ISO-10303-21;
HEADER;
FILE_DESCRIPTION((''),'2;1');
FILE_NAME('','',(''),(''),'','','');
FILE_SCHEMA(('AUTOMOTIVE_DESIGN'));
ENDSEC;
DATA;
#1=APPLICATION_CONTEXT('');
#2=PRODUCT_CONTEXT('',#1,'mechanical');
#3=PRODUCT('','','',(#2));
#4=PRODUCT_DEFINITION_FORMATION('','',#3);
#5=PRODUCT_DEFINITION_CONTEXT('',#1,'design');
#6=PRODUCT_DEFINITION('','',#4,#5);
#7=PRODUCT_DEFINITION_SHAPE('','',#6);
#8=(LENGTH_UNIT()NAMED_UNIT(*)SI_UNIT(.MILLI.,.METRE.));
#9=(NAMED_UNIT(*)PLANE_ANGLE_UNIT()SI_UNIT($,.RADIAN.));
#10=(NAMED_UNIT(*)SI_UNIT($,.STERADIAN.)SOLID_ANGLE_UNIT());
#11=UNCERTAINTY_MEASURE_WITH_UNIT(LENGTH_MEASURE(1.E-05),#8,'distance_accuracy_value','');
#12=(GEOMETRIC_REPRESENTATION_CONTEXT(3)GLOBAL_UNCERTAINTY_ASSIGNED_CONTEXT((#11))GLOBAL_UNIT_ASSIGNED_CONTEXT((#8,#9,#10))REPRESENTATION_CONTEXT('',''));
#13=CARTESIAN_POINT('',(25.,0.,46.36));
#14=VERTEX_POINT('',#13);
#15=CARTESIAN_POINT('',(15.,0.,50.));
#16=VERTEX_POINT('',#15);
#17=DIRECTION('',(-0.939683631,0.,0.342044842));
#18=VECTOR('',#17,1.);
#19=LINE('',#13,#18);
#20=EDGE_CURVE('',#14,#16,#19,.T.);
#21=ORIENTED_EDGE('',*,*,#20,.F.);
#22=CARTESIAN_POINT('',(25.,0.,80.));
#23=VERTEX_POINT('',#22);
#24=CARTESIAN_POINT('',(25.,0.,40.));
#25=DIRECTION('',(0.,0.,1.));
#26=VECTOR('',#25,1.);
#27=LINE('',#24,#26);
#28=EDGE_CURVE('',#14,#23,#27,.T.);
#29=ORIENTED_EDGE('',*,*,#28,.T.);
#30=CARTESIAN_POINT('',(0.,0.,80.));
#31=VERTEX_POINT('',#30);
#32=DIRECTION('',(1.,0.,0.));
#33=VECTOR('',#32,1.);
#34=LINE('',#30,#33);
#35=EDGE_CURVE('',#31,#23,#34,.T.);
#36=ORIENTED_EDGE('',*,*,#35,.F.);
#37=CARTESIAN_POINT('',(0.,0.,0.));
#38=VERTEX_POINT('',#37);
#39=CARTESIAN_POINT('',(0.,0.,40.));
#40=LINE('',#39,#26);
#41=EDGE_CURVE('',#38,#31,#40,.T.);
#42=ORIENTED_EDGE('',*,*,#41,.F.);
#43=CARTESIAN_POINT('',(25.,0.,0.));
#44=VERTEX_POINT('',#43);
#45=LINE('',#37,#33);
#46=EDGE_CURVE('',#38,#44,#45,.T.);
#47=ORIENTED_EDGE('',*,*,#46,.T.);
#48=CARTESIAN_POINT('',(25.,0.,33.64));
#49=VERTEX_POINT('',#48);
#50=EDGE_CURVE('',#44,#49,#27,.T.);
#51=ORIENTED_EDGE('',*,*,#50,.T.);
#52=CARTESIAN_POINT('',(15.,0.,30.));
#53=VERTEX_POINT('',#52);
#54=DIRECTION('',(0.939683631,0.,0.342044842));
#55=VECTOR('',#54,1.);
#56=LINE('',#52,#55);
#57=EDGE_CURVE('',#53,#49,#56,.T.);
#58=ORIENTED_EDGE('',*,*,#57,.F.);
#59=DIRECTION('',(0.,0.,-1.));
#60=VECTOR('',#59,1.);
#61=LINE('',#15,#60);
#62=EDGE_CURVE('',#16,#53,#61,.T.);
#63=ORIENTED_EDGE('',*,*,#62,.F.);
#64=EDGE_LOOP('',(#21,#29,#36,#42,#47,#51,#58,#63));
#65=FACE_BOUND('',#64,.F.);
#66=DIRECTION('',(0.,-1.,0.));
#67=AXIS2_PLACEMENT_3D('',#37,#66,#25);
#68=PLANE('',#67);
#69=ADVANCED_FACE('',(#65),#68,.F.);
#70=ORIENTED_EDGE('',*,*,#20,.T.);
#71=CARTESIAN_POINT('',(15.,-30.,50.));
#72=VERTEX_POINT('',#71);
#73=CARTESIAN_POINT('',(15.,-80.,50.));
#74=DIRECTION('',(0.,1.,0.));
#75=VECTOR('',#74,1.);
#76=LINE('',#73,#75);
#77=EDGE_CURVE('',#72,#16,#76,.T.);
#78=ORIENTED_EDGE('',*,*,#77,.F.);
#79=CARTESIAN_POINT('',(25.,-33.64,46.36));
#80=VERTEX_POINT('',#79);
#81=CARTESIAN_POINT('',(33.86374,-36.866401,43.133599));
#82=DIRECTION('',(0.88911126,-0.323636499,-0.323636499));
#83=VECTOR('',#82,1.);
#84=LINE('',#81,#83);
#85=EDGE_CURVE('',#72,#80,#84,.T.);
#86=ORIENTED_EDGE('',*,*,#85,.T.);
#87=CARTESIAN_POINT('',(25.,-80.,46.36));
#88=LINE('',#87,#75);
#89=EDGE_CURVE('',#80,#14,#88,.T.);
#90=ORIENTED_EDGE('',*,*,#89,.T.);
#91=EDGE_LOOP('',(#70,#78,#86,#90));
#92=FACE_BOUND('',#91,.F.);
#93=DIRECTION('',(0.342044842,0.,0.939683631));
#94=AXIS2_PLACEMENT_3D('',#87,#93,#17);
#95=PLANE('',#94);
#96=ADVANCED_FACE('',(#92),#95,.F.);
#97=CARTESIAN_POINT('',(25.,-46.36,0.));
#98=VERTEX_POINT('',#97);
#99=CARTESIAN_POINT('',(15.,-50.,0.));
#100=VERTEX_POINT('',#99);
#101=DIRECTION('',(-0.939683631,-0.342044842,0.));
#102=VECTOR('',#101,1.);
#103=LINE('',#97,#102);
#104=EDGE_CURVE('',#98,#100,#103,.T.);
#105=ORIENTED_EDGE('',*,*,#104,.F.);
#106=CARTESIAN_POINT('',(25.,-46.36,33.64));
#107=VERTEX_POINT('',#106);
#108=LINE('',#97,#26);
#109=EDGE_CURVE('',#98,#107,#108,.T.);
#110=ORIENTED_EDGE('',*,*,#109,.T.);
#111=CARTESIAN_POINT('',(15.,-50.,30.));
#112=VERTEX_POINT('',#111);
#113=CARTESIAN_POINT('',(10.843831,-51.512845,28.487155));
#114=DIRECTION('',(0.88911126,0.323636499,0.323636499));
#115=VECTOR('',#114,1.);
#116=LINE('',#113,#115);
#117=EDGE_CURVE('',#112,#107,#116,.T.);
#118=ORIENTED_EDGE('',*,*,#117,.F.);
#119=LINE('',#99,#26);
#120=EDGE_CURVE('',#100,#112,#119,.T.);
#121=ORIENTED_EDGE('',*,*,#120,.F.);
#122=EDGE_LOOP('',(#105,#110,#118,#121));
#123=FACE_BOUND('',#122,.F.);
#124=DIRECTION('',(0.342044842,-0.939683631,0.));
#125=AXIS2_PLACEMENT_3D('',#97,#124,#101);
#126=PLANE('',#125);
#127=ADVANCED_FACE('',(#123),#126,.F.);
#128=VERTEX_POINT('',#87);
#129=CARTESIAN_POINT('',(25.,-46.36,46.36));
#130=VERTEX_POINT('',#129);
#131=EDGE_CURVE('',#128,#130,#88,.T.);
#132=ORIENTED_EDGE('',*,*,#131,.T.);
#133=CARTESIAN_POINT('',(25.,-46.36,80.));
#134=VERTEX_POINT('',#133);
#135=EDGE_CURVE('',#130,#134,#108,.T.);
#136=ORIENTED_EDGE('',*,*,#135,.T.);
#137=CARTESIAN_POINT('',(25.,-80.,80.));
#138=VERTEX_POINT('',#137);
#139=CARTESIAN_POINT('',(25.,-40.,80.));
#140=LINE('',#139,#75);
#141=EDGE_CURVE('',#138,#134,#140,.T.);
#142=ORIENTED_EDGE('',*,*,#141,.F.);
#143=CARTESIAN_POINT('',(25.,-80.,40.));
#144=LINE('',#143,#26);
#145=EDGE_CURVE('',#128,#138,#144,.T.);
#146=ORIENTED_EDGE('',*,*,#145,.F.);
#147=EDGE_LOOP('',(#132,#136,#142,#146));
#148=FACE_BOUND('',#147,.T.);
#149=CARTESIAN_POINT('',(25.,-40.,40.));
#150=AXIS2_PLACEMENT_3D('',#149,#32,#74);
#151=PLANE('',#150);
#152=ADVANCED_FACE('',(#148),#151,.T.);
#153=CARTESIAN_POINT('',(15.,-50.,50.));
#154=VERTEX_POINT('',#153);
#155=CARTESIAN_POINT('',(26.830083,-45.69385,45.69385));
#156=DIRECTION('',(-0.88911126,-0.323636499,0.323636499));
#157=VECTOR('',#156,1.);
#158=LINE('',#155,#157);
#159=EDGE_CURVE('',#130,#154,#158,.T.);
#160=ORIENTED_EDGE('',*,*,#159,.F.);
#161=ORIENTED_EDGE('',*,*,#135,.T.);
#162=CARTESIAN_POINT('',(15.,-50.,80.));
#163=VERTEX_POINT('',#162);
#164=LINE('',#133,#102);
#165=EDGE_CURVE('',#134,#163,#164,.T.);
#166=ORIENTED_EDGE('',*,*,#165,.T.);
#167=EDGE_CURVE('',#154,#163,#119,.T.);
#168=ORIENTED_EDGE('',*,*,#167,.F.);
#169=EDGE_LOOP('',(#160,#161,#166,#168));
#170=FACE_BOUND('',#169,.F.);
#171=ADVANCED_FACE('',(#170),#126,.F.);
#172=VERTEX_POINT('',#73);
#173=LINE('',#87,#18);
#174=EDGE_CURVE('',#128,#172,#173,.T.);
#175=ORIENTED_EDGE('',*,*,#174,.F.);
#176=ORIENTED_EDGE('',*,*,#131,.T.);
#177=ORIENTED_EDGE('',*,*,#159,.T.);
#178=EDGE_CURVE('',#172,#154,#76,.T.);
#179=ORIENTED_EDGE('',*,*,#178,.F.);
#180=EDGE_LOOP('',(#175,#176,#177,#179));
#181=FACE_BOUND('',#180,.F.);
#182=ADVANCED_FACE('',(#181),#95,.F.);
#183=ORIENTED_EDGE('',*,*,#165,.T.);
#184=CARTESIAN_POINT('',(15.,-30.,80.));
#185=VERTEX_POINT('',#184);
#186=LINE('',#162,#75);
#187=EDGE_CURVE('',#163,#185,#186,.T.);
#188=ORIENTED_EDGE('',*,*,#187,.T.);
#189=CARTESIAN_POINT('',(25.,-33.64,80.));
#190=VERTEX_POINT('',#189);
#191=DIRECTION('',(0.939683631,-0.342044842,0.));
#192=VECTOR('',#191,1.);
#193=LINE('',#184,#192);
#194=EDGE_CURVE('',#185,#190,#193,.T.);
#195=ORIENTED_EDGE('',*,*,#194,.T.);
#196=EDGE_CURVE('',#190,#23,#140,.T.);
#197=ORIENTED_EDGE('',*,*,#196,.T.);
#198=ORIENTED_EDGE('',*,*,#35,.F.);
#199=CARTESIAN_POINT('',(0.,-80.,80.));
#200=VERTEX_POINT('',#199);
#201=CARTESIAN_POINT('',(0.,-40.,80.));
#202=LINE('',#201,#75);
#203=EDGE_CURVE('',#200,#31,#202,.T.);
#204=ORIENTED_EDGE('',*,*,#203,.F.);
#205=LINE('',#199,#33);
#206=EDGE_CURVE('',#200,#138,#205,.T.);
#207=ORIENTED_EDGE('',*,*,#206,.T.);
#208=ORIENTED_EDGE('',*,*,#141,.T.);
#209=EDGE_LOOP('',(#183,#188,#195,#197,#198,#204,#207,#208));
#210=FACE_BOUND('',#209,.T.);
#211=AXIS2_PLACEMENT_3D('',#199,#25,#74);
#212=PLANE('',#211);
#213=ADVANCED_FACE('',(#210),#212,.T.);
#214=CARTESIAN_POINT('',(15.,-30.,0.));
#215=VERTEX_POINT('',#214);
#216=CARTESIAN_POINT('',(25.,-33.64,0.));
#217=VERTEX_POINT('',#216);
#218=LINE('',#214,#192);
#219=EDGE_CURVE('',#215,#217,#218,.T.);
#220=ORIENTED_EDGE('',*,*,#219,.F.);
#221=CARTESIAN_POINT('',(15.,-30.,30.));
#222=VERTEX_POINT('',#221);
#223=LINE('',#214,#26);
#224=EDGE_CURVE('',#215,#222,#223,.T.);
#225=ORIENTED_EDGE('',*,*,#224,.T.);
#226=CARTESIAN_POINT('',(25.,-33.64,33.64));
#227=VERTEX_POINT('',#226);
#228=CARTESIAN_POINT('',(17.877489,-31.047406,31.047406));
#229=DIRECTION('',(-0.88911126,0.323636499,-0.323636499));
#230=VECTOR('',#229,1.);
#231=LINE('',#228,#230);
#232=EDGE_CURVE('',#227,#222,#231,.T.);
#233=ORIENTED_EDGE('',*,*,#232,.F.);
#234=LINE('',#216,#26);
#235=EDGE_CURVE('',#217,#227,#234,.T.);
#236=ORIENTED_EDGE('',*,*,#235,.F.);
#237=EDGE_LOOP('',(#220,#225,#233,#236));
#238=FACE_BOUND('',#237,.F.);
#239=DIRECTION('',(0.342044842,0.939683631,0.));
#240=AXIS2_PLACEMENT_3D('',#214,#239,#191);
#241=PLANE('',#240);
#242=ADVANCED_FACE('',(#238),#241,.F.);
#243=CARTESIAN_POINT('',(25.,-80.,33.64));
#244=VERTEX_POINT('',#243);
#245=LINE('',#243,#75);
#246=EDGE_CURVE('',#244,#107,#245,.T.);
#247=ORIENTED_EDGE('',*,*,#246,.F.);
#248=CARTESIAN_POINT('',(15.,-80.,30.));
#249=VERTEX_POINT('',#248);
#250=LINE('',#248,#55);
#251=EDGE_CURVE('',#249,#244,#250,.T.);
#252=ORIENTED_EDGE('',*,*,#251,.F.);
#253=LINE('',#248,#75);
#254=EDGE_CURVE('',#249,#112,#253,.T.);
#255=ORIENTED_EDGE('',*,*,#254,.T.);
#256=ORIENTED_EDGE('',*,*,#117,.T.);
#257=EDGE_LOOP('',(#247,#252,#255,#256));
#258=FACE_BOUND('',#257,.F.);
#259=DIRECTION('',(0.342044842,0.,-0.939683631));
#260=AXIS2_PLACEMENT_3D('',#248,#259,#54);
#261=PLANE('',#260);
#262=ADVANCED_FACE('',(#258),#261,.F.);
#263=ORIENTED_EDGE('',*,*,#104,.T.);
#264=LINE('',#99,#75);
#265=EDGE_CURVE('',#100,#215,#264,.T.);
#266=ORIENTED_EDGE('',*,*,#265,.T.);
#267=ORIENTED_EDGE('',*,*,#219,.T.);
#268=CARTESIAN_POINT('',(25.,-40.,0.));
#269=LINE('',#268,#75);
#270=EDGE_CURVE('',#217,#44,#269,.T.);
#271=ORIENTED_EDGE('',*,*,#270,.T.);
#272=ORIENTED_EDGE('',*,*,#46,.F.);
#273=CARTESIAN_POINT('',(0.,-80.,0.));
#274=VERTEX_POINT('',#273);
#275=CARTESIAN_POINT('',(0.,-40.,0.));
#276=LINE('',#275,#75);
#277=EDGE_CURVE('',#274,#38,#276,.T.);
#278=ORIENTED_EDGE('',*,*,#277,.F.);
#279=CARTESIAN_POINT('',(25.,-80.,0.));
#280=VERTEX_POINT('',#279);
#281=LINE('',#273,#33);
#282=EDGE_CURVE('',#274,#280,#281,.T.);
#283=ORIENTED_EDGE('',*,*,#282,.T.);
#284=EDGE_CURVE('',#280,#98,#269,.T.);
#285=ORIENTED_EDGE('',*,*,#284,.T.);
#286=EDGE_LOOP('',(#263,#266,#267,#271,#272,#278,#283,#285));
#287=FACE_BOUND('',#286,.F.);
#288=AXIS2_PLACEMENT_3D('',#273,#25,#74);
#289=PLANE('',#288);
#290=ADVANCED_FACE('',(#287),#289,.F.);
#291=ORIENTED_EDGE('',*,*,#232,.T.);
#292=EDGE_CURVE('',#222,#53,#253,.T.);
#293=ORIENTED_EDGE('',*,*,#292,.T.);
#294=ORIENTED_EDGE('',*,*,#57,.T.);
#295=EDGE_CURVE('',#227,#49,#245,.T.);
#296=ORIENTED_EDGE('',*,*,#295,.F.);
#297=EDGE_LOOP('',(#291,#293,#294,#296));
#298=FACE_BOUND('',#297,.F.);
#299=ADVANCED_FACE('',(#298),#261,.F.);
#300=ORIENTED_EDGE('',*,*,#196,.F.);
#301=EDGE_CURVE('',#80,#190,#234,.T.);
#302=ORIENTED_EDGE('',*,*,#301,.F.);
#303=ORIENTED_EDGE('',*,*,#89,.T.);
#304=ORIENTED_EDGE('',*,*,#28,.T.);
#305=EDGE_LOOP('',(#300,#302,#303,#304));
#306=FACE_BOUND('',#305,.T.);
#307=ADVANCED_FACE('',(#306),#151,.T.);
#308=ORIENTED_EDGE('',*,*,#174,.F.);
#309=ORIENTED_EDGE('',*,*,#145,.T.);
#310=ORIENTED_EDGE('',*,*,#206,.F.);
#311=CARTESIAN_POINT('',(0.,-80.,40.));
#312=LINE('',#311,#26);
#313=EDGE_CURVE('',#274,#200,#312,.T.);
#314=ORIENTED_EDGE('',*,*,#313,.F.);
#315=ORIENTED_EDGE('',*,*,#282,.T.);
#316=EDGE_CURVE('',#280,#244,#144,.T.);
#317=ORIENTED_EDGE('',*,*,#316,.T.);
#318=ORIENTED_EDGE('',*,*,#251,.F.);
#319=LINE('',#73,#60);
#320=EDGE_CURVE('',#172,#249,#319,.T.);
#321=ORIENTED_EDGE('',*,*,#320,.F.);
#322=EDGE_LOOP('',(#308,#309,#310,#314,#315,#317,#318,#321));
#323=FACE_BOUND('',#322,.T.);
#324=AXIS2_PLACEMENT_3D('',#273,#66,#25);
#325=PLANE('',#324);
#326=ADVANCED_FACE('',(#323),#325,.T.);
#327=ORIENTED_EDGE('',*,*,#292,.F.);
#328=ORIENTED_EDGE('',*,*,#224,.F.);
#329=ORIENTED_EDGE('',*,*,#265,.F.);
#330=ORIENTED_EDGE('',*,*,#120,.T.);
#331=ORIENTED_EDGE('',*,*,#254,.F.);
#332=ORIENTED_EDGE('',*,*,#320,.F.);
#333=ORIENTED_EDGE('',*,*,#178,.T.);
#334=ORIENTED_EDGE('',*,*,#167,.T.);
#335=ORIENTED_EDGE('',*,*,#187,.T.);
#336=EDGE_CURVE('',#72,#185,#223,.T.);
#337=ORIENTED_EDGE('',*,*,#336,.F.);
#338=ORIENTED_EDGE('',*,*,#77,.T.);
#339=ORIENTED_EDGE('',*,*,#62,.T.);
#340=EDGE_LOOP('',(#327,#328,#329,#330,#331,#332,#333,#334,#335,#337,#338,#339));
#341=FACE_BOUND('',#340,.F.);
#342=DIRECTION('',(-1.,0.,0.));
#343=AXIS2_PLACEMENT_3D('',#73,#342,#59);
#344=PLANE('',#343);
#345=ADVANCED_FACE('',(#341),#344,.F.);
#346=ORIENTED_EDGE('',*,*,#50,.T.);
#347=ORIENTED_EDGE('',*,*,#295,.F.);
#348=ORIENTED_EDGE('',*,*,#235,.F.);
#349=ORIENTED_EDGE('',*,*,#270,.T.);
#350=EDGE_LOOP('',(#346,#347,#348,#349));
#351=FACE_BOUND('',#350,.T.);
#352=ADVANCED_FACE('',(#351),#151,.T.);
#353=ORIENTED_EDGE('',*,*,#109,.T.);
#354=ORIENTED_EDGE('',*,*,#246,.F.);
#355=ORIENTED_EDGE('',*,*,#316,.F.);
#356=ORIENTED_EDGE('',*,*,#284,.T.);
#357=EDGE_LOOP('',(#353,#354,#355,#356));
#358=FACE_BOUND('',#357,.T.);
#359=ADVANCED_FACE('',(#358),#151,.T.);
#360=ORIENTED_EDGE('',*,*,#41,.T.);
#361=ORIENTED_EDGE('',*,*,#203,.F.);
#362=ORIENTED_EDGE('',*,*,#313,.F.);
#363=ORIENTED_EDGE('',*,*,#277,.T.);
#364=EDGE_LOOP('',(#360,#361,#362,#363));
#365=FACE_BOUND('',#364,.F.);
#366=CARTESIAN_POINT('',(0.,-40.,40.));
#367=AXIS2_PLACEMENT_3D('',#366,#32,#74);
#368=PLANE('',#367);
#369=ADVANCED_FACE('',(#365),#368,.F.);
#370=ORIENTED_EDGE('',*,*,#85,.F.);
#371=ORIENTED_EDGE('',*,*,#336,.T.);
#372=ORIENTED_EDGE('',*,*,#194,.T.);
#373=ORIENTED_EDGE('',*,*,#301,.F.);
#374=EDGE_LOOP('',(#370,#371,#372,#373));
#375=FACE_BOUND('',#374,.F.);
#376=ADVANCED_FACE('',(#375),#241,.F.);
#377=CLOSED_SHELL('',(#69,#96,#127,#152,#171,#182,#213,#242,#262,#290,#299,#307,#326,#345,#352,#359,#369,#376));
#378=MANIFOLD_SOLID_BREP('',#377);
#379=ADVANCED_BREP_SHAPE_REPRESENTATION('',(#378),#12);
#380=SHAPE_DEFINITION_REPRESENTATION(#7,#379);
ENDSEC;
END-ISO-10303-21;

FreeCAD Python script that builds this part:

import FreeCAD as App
import Part
import Sketcher
from FreeCAD import Vector
Q = App.Units.Quantity


def add_polygon(sketch, points):
    """Adds a closed chain of lines whose ends are joined by coincident constraints."""
    first, n = sketch.GeometryCount, len(points)
    for a, b in zip(points, points[1:] + points[:1]):
        sketch.addGeometry(Part.LineSegment(App.Vector(*a, 0), App.Vector(*b, 0)), False)
    for i in range(n):
        sketch.addConstraint(Sketcher.Constraint("Coincident", first + i, 2, first + (i + 1) % n, 1))

doc = App.newDocument("Part")
body = doc.addObject("PartDesign::Body", "Body")

# Sketch on YZ plane
sketch1 = body.newObject("Sketcher::SketchObject", "Sketch")
sketch1.AttachmentSupport = (doc.getObject("YZ_Plane"), [""])
sketch1.MapMode = "FlatFace"
add_polygon(sketch1, [(-80, 80), (-80, 0), (0, 0), (0, 80)])  # lines 0-3
sketch1.addConstraint([
    Sketcher.Constraint("Vertical", 0),
    Sketcher.Constraint("Horizontal", 1),
    Sketcher.Constraint("Vertical", 2),
    Sketcher.Constraint("Horizontal", 3),
    Sketcher.Constraint("Coincident", 1, 2, -1, 1),
    Sketcher.Constraint("Equal", 3, 0),
    Sketcher.Constraint("DistanceX", 1, 1, 1, 2, Q("80 mm")),
])
pad1 = body.newObject("PartDesign::Pad", "Pad")
pad1.Profile = sketch1
pad1.Length = 25

# Sketch on XY plane
sketch2 = body.newObject("Sketcher::SketchObject", "Sketch001")
sketch2.AttachmentSupport = (doc.getObject("XY_Plane"), [""])
sketch2.MapMode = "FlatFace"
add_polygon(sketch2, [(25, -46.36), (15, -50), (15, -30), (25, -33.64)])  # lines 0-3
sketch2.addConstraint([
    Sketcher.Constraint("Vertical", 1),
    Sketcher.Constraint("Vertical", 3),
    Sketcher.Constraint("Equal", 0, 2),
    Sketcher.Constraint("DistanceY", 1, 1, 1, 2, Q("20 mm")),
    Sketcher.Constraint("DistanceX", -1, 1, 0, 2, Q("15 mm")),
    Sketcher.Constraint("DistanceY", 0, 2, -1, 1, Q("50 mm")),
    Sketcher.Constraint("DistanceX", -1, 1, 2, 2, Q("25 mm")),
    Sketcher.Constraint("DistanceY", 3, 2, 3, 1, Q("12.72 mm")),
])
pocket1 = body.newObject("PartDesign::Pocket", "Pocket")
pocket1.Profile = sketch2
pocket1.Length = 80
pocket1.Reversed = True

# Sketch on XZ plane
sketch3 = body.newObject("Sketcher::SketchObject", "Sketch002")
sketch3.AttachmentSupport = (doc.getObject("XZ_Plane"), [""])
sketch3.MapMode = "FlatFace"
sketch3.AttachmentOffset = App.Placement(Vector(0, 0, 80), App.Rotation())
add_polygon(sketch3, [(15, 50), (15, 30), (25, 33.64), (25, 46.36)])  # lines 0-3
sketch3.addConstraint([
    Sketcher.Constraint("Vertical", 0),
    Sketcher.Constraint("Vertical", 2),
    Sketcher.Constraint("Equal", 1, 3),
    Sketcher.Constraint("DistanceY", 0, 2, 0, 1, Q("20 mm")),
    Sketcher.Constraint("DistanceX", -1, 1, 0, 2, Q("15 mm")),
    Sketcher.Constraint("DistanceY", -1, 1, 0, 2, Q("30 mm")),
    Sketcher.Constraint("DistanceX", -1, 1, 1, 2, Q("25 mm")),
    Sketcher.Constraint("DistanceY", 2, 1, 2, 2, Q("12.72 mm")),
])
pocket2 = body.newObject("PartDesign::Pocket", "Pocket001")
pocket2.Profile = sketch3
pocket2.Length = 80

doc.recompute()
